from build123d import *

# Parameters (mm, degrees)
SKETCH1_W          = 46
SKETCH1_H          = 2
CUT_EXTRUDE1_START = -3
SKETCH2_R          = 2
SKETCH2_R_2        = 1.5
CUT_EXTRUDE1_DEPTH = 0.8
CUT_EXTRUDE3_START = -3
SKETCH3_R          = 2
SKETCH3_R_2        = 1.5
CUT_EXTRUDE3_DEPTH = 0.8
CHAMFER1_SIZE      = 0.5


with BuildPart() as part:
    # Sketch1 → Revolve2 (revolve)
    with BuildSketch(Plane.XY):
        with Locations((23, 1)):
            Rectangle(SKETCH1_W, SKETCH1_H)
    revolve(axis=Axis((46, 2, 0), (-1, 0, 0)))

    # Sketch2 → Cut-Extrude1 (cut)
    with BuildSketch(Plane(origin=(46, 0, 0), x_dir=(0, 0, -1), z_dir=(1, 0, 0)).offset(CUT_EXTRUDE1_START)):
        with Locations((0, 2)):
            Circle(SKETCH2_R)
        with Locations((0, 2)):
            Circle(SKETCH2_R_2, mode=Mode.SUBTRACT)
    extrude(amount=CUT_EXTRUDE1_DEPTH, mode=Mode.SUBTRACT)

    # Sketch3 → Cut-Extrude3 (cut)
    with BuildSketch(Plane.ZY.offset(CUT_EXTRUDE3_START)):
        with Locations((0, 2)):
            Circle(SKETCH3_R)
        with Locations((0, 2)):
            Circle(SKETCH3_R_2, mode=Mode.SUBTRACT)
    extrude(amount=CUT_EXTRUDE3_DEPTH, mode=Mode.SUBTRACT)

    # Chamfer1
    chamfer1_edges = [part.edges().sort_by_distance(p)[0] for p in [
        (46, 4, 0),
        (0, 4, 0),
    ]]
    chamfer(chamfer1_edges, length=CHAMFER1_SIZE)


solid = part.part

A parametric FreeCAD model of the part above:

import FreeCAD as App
import Part
import Sketcher

V = App.Vector


def edges_at(feature, points):
    """Names of the edges that pass closest to the given points."""
    edges = feature.Shape.Edges
    near = lambda p: min(range(len(edges)), key=lambda i: edges[i].distToShape(Part.Vertex(*p))[0])
    return sorted({f"Edge{near(p) + 1}" for p in points})


def add_polygon(sketch, points):
    """Adds a closed chain of lines whose ends are joined by coincident constraints."""
    first, n = sketch.GeometryCount, len(points)
    for a, b in zip(points, points[1:] + points[:1]):
        sketch.addGeometry(Part.LineSegment(App.Vector(*a, 0), App.Vector(*b, 0)), False)
    for i in range(n):
        sketch.addConstraint(Sketcher.Constraint("Coincident", first + i, 2, first + (i + 1) % n, 1))

doc = App.newDocument("Part")
params = doc.addObject("Spreadsheet::Sheet", "Params")
for row, (alias, value) in enumerate([
    ("sketch1_width", "46 mm"),
    ("sketch1_height", "2 mm"),
    ("revolution_angle", "360 deg"),
    ("sketch2_diameter", "4 mm"),
    ("sketch2_diameter2", "3 mm"),
    ("pocket1_length", "0.8 mm"),
    ("sketch3_diameter", "4 mm"),
    ("sketch3_diameter2", "3 mm"),
    ("pocket2_length", "0.8 mm"),
    ("chamfer_size", "0.5 mm"),
], start=1):
    params.set(f"A{row}", alias)
    params.set(f"B{row}", "=" + value)
    params.setAlias(f"B{row}", alias)

body = doc.addObject("PartDesign::Body", "Body")

# Sketch on XY plane
sketch1 = doc.addObject("Sketcher::SketchObject", "Sketch")
body.addObject(sketch1)
sketch1.AttachmentSupport = (doc.XY_Plane, [""])
sketch1.MapMode = "FlatFace"
add_polygon(sketch1, [(0, 2), (0, 0), (46, 0), (46, 2)])  # lines 0-3
sketch1.addGeometry(Part.LineSegment(V(46, 2, 0), V(0, 2, 0)), True)  # axis
sketch1.addConstraint([
    Sketcher.Constraint("Vertical", 0),
    Sketcher.Constraint("Horizontal", 1),
    Sketcher.Constraint("Vertical", 2),
    Sketcher.Constraint("Horizontal", 3),
    Sketcher.Constraint("Horizontal", 4),
    Sketcher.Constraint("Coincident", 0, 2, -1, 1),
    Sketcher.Constraint("Coincident", 4, 1, 2, 2),
    Sketcher.Constraint("PointOnObject", 4, 2, -2),
    Sketcher.Constraint("DistanceX", 1, 1, 1, 2, 46.0),
    Sketcher.Constraint("DistanceY", 0, 2, 0, 1, 2.0),
])
sketch1.setExpression("Constraints[12]", "Params.sketch1_width")
sketch1.setExpression("Constraints[13]", "Params.sketch1_height")
revolution = doc.addObject("PartDesign::Revolution", "Revolution")
body.addObject(revolution)
revolution.Profile = sketch1
revolution.ReferenceAxis = (sketch1, ["Axis0"])
revolution.setExpression("Angle", "Params.revolution_angle")

# Sketch on YZ plane
sketch2 = doc.addObject("Sketcher::SketchObject", "Sketch001")
body.addObject(sketch2)
sketch2.AttachmentSupport = (doc.YZ_Plane, [""])
sketch2.MapMode = "FlatFace"
sketch2.AttachmentOffset = App.Placement(V(0, 0, 43), App.Rotation())
sketch2.addGeometry([
    Part.Circle(V(2, 0, 0), V(0, 0, 1), 2),
    Part.Circle(V(2, 0, 0), V(0, 0, 1), 1.5),
], False)
sketch2.addConstraint([
    Sketcher.Constraint("Coincident", 1, 3, 0, 3),
    Sketcher.Constraint("PointOnObject", 0, 3, -1),
    Sketcher.Constraint("Diameter", 0, 4.0),
    Sketcher.Constraint("Diameter", 1, 3.0),
    Sketcher.Constraint("DistanceX", -1, 1, 0, 3, 2.0),
])
sketch2.setExpression("Constraints[2]", "Params.sketch2_diameter")
sketch2.setExpression("Constraints[3]", "Params.sketch2_diameter2")
pocket1 = doc.addObject("PartDesign::Pocket", "Pocket")
body.addObject(pocket1)
pocket1.Profile = sketch2
pocket1.setExpression("Length", "Params.pocket1_length")
pocket1.Reversed = True

# Sketch on YZ plane
sketch3 = doc.addObject("Sketcher::SketchObject", "Sketch002")
body.addObject(sketch3)
sketch3.AttachmentSupport = (doc.YZ_Plane, [""])
sketch3.MapMode = "FlatFace"
sketch3.AttachmentOffset = App.Placement(V(0, 0, 3), App.Rotation())
sketch3.addGeometry([
    Part.Circle(V(2, 0, 0), V(0, 0, 1), 2),
    Part.Circle(V(2, 0, 0), V(0, 0, 1), 1.5),
], False)
sketch3.addConstraint([
    Sketcher.Constraint("Coincident", 1, 3, 0, 3),
    Sketcher.Constraint("PointOnObject", 0, 3, -1),
    Sketcher.Constraint("Diameter", 0, 4.0),
    Sketcher.Constraint("Diameter", 1, 3.0),
    Sketcher.Constraint("DistanceX", -1, 1, 0, 3, 2.0),
])
sketch3.setExpression("Constraints[2]", "Params.sketch3_diameter")
sketch3.setExpression("Constraints[3]", "Params.sketch3_diameter2")
pocket2 = doc.addObject("PartDesign::Pocket", "Pocket001")
body.addObject(pocket2)
pocket2.Profile = sketch3
pocket2.setExpression("Length", "Params.pocket2_length")
doc.recompute()

chamfer = doc.addObject("PartDesign::Chamfer", "Chamfer")
body.addObject(chamfer)
chamfer.Base = (pocket2, edges_at(pocket2, [(46, 4, 0), (0, 4, 0)]))
chamfer.setExpression("Size", "Params.chamfer_size")

doc.recompute()
